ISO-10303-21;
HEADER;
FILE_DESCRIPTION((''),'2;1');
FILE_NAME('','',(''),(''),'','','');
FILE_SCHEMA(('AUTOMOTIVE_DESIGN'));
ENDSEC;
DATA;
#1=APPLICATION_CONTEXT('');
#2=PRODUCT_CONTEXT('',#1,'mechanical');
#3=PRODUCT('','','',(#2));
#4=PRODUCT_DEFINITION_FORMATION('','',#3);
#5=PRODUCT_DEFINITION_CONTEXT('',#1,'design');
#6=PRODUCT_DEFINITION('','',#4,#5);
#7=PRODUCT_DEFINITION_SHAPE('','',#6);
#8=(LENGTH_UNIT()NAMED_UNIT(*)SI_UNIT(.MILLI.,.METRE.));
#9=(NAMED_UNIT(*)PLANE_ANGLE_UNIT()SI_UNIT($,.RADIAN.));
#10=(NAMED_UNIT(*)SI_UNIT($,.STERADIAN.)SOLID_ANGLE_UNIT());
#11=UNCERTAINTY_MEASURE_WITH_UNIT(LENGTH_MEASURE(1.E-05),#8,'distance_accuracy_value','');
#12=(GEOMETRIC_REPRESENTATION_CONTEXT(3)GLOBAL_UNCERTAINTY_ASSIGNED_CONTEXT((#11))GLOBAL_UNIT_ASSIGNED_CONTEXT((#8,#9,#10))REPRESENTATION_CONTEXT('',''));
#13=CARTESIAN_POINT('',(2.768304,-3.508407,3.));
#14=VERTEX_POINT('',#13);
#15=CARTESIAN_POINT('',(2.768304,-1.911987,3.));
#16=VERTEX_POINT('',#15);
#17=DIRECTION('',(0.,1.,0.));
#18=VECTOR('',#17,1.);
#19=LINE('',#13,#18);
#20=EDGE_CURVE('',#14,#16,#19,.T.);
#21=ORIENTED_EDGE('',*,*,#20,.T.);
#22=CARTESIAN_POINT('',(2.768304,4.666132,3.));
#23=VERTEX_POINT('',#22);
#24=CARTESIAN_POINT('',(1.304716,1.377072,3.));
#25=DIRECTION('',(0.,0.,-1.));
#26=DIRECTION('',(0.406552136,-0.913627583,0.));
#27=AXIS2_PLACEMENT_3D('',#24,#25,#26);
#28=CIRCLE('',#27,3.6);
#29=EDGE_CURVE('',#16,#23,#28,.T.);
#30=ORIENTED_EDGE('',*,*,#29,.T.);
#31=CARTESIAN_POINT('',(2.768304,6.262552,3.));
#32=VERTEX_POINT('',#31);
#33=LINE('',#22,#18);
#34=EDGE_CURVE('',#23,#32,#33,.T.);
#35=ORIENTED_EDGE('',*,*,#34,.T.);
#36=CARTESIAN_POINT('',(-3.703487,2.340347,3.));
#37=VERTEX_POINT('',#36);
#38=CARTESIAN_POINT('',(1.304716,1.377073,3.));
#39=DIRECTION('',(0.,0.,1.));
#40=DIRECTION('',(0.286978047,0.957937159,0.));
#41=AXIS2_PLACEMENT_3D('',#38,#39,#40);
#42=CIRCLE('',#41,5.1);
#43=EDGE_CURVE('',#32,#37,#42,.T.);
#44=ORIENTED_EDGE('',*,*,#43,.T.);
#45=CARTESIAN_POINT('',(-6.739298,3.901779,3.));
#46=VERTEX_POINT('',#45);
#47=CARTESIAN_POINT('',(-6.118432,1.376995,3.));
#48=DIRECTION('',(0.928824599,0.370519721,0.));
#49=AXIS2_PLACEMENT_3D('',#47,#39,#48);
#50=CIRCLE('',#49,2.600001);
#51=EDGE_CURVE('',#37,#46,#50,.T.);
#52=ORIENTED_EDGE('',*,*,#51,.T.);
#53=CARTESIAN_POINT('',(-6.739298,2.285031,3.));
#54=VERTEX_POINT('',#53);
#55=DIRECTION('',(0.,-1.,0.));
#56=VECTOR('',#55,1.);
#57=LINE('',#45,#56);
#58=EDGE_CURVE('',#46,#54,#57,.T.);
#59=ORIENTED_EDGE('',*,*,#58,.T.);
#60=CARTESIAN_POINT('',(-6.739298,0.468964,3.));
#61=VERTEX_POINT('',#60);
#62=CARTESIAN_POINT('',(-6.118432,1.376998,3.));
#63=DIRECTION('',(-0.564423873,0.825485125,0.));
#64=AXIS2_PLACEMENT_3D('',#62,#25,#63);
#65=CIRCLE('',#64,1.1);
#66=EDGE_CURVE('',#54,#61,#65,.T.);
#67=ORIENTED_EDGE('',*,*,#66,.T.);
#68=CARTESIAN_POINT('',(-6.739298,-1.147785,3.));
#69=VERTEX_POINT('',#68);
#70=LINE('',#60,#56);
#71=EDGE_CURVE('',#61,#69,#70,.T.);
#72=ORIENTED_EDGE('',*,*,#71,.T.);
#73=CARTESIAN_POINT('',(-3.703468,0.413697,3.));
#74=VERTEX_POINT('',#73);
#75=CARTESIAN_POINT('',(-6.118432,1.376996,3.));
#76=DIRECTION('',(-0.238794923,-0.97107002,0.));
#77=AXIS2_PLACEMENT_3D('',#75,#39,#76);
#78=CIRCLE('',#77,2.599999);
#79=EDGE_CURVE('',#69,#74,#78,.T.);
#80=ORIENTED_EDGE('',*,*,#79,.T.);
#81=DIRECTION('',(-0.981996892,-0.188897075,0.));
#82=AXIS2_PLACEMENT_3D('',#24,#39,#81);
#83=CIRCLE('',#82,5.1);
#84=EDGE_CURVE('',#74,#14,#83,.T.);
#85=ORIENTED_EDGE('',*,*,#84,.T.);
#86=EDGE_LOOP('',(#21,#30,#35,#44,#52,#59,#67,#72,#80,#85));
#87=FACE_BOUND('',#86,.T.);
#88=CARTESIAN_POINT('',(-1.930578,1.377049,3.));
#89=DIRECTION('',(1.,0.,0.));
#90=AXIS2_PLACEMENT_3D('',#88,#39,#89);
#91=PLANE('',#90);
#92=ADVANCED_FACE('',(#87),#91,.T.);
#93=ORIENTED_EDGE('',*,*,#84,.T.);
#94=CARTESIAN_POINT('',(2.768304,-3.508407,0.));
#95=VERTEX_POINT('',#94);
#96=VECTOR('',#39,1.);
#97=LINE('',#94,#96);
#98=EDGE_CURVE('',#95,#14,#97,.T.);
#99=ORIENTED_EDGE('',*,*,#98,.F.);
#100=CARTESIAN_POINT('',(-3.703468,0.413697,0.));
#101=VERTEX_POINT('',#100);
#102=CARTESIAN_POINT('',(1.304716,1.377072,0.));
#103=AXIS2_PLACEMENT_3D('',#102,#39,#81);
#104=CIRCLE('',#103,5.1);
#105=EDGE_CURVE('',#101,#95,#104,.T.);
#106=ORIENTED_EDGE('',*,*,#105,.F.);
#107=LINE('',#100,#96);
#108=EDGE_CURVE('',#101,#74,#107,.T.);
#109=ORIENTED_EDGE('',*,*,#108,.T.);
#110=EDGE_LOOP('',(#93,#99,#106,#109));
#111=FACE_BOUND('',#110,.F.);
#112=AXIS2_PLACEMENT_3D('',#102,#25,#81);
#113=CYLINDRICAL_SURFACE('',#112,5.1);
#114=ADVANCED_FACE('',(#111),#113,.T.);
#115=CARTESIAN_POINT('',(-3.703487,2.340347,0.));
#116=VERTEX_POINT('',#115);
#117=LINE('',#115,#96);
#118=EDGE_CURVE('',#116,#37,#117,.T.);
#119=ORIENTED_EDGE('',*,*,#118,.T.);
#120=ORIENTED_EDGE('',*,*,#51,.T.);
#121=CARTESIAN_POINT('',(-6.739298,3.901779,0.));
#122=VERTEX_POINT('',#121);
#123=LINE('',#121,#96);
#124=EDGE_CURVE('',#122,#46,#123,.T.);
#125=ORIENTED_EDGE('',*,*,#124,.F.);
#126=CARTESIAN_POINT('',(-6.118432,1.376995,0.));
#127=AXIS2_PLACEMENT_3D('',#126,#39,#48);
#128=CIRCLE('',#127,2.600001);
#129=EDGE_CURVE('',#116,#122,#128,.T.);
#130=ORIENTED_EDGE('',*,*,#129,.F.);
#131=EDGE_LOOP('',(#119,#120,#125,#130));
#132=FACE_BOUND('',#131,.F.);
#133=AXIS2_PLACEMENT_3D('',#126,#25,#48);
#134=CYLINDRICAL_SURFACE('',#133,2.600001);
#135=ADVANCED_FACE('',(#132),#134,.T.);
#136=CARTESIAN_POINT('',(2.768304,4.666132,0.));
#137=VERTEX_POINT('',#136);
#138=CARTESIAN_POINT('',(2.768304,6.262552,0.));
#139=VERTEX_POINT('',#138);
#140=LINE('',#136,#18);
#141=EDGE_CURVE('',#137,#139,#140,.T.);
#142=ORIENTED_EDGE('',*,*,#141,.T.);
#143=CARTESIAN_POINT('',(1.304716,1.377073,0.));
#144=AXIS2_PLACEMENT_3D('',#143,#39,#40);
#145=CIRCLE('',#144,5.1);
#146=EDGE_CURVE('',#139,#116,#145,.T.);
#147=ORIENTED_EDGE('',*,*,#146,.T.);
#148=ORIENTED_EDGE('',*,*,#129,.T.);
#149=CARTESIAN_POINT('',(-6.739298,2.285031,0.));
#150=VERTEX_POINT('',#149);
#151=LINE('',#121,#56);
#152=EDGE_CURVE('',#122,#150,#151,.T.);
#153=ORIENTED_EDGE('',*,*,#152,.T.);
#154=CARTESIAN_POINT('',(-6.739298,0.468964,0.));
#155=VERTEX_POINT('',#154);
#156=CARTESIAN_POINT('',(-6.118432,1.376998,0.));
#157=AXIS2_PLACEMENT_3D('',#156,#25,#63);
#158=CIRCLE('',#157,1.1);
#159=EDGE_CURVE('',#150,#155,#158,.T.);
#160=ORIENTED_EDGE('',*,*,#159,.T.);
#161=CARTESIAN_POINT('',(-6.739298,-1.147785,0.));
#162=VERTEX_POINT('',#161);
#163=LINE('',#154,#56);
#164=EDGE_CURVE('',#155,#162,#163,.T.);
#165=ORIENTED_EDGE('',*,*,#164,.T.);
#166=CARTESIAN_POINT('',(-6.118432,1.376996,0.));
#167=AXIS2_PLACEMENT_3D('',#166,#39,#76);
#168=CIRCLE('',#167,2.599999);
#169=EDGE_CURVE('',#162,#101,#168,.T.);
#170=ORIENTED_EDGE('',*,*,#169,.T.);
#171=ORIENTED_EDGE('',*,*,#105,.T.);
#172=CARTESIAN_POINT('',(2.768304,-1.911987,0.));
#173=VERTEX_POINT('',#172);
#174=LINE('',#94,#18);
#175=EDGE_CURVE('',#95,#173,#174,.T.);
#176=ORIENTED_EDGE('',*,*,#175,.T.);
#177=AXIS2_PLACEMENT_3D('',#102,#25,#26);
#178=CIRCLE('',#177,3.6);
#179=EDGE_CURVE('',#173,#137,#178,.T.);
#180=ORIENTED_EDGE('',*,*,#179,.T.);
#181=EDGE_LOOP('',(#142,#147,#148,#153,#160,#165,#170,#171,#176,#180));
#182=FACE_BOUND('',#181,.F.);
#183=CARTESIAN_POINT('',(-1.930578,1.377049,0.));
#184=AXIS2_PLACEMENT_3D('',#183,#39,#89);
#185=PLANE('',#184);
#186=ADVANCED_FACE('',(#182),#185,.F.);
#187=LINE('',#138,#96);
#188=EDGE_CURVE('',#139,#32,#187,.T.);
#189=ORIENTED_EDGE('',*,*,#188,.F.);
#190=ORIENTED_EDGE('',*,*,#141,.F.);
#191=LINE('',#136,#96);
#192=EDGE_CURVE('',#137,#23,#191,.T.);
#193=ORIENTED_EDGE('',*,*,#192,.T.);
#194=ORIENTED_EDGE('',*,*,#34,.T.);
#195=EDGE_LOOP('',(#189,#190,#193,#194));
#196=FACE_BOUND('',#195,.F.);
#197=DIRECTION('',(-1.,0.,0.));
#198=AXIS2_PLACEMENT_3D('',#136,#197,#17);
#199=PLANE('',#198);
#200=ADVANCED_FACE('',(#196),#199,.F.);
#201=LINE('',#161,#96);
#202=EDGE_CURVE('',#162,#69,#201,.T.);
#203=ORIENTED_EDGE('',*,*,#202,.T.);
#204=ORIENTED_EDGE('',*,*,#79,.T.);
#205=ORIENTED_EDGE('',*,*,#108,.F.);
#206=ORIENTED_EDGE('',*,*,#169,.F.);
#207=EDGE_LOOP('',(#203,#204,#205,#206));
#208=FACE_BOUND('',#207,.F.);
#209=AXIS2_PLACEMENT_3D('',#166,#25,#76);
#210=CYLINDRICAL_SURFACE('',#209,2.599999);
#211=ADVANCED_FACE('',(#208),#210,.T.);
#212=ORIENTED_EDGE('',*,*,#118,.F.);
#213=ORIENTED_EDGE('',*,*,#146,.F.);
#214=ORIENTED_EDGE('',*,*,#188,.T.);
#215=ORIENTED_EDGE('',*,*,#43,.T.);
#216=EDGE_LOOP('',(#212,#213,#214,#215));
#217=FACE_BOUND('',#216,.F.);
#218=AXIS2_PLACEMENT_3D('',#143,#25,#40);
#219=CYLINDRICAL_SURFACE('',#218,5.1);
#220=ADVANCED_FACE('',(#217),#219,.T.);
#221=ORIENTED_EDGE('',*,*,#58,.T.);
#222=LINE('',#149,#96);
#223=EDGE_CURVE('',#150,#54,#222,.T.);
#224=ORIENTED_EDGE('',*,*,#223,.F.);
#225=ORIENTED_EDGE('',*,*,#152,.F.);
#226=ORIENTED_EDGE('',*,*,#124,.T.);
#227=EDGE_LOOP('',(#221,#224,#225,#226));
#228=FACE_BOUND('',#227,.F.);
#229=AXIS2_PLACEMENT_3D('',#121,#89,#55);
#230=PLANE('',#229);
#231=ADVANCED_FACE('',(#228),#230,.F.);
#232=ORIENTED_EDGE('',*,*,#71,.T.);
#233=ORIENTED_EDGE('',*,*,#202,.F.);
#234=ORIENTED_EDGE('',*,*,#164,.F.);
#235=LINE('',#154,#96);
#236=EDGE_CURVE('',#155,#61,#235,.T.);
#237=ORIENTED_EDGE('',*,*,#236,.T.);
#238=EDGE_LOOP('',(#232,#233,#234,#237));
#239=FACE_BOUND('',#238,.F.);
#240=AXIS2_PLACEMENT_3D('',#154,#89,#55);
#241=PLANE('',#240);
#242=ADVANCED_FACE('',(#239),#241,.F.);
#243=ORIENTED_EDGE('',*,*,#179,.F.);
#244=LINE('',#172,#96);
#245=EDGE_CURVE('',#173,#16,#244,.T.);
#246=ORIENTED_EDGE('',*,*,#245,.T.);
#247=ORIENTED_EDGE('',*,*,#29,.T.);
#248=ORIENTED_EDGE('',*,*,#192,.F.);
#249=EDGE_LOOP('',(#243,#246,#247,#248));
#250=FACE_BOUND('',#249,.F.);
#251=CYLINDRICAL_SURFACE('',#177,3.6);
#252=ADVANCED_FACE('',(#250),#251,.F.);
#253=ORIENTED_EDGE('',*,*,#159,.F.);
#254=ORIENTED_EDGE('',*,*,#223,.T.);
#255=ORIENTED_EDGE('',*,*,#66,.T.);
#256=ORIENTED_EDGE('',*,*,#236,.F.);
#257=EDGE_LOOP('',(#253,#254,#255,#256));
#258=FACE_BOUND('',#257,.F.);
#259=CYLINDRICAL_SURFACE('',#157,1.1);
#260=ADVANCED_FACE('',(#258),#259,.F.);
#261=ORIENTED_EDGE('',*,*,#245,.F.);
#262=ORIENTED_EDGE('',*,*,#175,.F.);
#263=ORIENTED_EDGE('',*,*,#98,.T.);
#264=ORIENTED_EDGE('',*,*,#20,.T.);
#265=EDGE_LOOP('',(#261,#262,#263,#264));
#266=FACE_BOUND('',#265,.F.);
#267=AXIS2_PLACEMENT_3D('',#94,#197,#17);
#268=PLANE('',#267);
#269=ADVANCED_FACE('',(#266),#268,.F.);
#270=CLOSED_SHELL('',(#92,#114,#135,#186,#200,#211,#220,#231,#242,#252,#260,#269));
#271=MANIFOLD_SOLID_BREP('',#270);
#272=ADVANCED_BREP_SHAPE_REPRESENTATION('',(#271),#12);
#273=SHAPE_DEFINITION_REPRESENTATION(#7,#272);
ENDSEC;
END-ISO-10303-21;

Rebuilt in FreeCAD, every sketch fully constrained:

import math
import FreeCAD as App
import Part
import Sketcher

V = App.Vector
Q = App.Units.Quantity

doc = App.newDocument("Part")
body = doc.addObject("PartDesign::Body", "Body")

sketch1 = doc.addObject("Sketcher::SketchObject", "Sketch")
body.addObject(sketch1)
sketch1.AttachmentSupport = (doc.XY_Plane, [""])
sketch1.MapMode = "FlatFace"
sketch1.addGeometry([
    Part.ArcOfCircle(Part.Circle(V(1.304716, 1.377072, 0), V(0, 0, 1), 3.6), math.radians(66.011571), math.radians(293.988429)),
    Part.LineSegment(V(2.768304, 4.666132, 0), V(2.768304, 6.262552, 0)),
    Part.ArcOfCircle(Part.Circle(V(1.304716, 1.377073, 0), V(0, 0, 1), 5.1), math.radians(73.322878), math.radians(169.112729)),
    Part.ArcOfCircle(Part.Circle(V(-6.118432, 1.376995, 0), V(0, 0, 1), 2.600001), math.radians(21.747673), math.radians(103.815394)),
    Part.LineSegment(V(-6.739298, 3.901779, 0), V(-6.739298, 2.285031, 0)),
    Part.ArcOfCircle(Part.Circle(V(-6.118432, 1.376998, 0), V(0, 0, 1), 1.1), math.radians(-124.362294), math.radians(124.362294)),
    Part.LineSegment(V(-6.739298, 0.468964, 0), V(-6.739298, -1.147785, 0)),
    Part.ArcOfCircle(Part.Circle(V(-6.118432, 1.376996, 0), V(0, 0, 1), 2.599999), math.radians(-103.815427), math.radians(-21.74644)),
    Part.ArcOfCircle(Part.Circle(V(1.304716, 1.377072, 0), V(0, 0, 1), 5.1), math.radians(-169.111574), math.radians(-73.322874)),
    Part.LineSegment(V(2.768304, -3.508407, 0), V(2.768304, -1.911987, 0)),
], False)
sketch1.addConstraint([
    Sketcher.Constraint("Coincident", 0, 1, 1, 1),
    Sketcher.Constraint("Coincident", 1, 2, 2, 1),
    Sketcher.Constraint("Coincident", 2, 2, 3, 1),
    Sketcher.Constraint("Coincident", 3, 2, 4, 1),
    Sketcher.Constraint("Coincident", 4, 2, 5, 2),
    Sketcher.Constraint("Coincident", 5, 1, 6, 1),
    Sketcher.Constraint("Coincident", 6, 2, 7, 1),
    Sketcher.Constraint("Coincident", 7, 2, 8, 1),
    Sketcher.Constraint("Coincident", 8, 2, 9, 1),
    Sketcher.Constraint("Coincident", 9, 2, 0, 2),
    Sketcher.Constraint("Vertical", 1),
    Sketcher.Constraint("Vertical", 4),
    Sketcher.Constraint("Vertical", 6),
    Sketcher.Constraint("Vertical", 9),
    Sketcher.Constraint("Coincident", 2, 3, 0, 3),
    Sketcher.Constraint("Coincident", 5, 3, 3, 3),
    Sketcher.Constraint("Coincident", 7, 3, 3, 3),
    Sketcher.Constraint("Coincident", 8, 3, 0, 3),
    Sketcher.Constraint("Equal", 2, 8),
    Sketcher.Constraint("Vertical", 4, 2, 5, 1),
    Sketcher.Constraint("Vertical", 1, 2, 8, 2),
    Sketcher.Constraint("Equal", 4, 6),
    Sketcher.Constraint("Radius", 0, Q("3.6 mm")),
    Sketcher.Constraint("Radius", 2, Q("5.1 mm")),
    Sketcher.Constraint("Radius", 3, Q("2.600001 mm")),
    Sketcher.Constraint("Radius", 5, Q("1.1 mm")),
    Sketcher.Constraint("DistanceY", 1, 1, 1, 2, Q("1.59642 mm")),
    Sketcher.Constraint("DistanceY", 6, 2, 6, 1, Q("1.616749 mm")),
    Sketcher.Constraint("DistanceX", 5, 1, -1, 1, Q("6.739298 mm")),
    Sketcher.Constraint("DistanceY", 7, 2, 7, 3, Q("0.963299 mm")),
    Sketcher.Constraint("DistanceY", -1, 1, 0, 1, Q("4.666132 mm")),
    Sketcher.Constraint("DistanceY", -1, 1, 3, 2, Q("3.901779 mm")),
])
pad1 = doc.addObject("PartDesign::Pad", "Pad")
body.addObject(pad1)
pad1.Profile = sketch1
pad1.Length = 3

doc.recompute()
